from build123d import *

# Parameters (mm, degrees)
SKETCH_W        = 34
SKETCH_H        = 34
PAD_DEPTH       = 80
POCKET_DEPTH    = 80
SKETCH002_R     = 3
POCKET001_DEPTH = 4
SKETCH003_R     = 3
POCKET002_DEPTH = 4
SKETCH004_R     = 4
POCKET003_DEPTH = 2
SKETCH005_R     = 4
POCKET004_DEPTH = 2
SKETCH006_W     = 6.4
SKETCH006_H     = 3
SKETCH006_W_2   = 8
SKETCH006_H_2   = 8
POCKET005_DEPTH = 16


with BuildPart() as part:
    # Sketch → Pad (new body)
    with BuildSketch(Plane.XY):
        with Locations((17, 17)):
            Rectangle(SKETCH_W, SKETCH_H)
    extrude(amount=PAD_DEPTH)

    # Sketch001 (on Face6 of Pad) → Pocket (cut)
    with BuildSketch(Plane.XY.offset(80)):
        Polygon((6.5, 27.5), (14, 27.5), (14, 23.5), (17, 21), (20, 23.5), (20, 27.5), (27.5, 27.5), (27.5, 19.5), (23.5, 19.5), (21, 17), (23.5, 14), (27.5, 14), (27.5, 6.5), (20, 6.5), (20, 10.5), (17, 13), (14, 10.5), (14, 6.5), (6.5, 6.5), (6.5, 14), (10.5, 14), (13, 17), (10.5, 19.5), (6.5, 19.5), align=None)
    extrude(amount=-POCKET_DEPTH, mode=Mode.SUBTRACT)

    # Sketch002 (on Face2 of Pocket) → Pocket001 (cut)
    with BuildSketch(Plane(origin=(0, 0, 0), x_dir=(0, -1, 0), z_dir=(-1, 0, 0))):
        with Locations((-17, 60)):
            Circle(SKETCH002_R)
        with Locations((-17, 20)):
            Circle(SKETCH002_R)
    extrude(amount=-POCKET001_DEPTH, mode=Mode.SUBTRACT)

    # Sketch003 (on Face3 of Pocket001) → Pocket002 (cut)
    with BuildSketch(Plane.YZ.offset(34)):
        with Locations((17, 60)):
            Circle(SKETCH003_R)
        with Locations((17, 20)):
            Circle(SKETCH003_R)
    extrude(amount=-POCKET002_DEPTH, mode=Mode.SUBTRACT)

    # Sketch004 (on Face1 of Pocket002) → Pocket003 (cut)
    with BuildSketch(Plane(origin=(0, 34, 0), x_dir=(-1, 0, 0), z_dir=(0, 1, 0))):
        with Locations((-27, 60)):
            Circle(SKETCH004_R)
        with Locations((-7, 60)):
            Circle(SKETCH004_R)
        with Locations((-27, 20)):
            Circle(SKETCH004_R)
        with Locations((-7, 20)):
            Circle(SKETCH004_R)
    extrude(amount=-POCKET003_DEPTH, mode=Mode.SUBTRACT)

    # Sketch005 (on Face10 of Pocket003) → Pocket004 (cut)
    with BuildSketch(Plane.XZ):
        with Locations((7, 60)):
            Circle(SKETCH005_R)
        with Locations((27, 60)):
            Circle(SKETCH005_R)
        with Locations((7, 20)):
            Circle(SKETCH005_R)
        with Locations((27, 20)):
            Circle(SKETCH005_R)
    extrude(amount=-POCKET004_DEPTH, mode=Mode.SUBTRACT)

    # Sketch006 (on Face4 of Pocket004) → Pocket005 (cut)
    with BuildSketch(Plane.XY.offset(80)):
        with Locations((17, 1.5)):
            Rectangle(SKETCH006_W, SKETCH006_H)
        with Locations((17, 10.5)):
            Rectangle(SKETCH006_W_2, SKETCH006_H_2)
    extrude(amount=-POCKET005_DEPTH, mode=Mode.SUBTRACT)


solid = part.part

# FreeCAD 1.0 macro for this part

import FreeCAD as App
import Part
import Sketcher

V = App.Vector
Q = App.Units.Quantity

doc = App.newDocument("Part")
params = doc.addObject("Spreadsheet::Sheet", "Params")
for row, (alias, value) in enumerate([
    ("sketch1_width", "34 mm"),
    ("pad1_length", "80 mm"),
    ("sketch2_width", "4 mm"),
    ("sketch2_height", "8 mm"),
    ("sketch2_width2", "7.5 mm"),
    ("pocket1_length", "80 mm"),
    ("sketch3_diameter", "6 mm"),
    ("pocket2_length", "4 mm"),
    ("sketch4_diameter", "6 mm"),
    ("pocket3_length", "4 mm"),
    ("sketch5_diameter", "8 mm"),
    ("pocket4_length", "2 mm"),
    ("sketch6_diameter", "8 mm"),
    ("pocket5_length", "2 mm"),
    ("sketch7_width", "8 mm"),
    ("sketch7_height", "3 mm"),
    ("sketch7_width2", "6.4 mm"),
    ("pocket6_length", "16 mm"),
], start=1):
    params.set(f"A{row}", alias)
    params.set(f"B{row}", "=" + value)
    params.setAlias(f"B{row}", alias)

body = doc.addObject("PartDesign::Body", "Body")

# Sketch on XY plane
sketch1 = body.newObject("Sketcher::SketchObject", "Sketch")
sketch1.AttachmentSupport = (doc.getObject("XY_Plane"), [""])
sketch1.MapMode = "FlatFace"
sketch1.addGeometry(Part.LineSegment(V(0, 34, 0), V(0, 0, 0)), False)
sketch1.addGeometry(Part.LineSegment(V(0, 0, 0), V(34, 0, 0)), False)
sketch1.addGeometry(Part.LineSegment(V(34, 0, 0), V(34, 34, 0)), False)
sketch1.addGeometry(Part.LineSegment(V(34, 34, 0), V(0, 34, 0)), False)
sketch1.addConstraint(Sketcher.Constraint("Coincident", 0, 2, 1, 1))
sketch1.addConstraint(Sketcher.Constraint("Coincident", 1, 2, 2, 1))
sketch1.addConstraint(Sketcher.Constraint("Coincident", 2, 2, 3, 1))
sketch1.addConstraint(Sketcher.Constraint("Coincident", 3, 2, 0, 1))
sketch1.addConstraint(Sketcher.Constraint("Vertical", 0))
sketch1.addConstraint(Sketcher.Constraint("Horizontal", 1))
sketch1.addConstraint(Sketcher.Constraint("Vertical", 2))
sketch1.addConstraint(Sketcher.Constraint("Horizontal", 3))
sketch1.addConstraint(Sketcher.Constraint("Coincident", 0, 2, -1, 1))
sketch1.addConstraint(Sketcher.Constraint("Equal", 3, 0))
sketch1.addConstraint(Sketcher.Constraint("DistanceX", 1, 1, 1, 2, Q("34 mm")))
sketch1.setExpression("Constraints[10]", "Params.sketch1_width")
pad1 = body.newObject("PartDesign::Pad", "Pad")
pad1.Profile = sketch1
pad1.setExpression("Length", "Params.pad1_length")

# Sketch on XY plane
sketch2 = body.newObject("Sketcher::SketchObject", "Sketch001")
sketch2.AttachmentSupport = (doc.getObject("XY_Plane"), [""])
sketch2.MapMode = "FlatFace"
sketch2.AttachmentOffset = App.Placement(V(0, 0, 80), App.Rotation())
sketch2.addGeometry(Part.LineSegment(V(14, 27.5, 0), V(6.5, 27.5, 0)), False)
sketch2.addGeometry(Part.LineSegment(V(6.5, 27.5, 0), V(6.5, 19.5, 0)), False)
sketch2.addGeometry(Part.LineSegment(V(6.5, 19.5, 0), V(10.5, 19.5, 0)), False)
sketch2.addGeometry(Part.LineSegment(V(10.5, 19.5, 0), V(13, 17, 0)), False)
sketch2.addGeometry(Part.LineSegment(V(13, 17, 0), V(10.5, 14, 0)), False)
sketch2.addGeometry(Part.LineSegment(V(10.5, 14, 0), V(6.5, 14, 0)), False)
sketch2.addGeometry(Part.LineSegment(V(6.5, 14, 0), V(6.5, 6.5, 0)), False)
sketch2.addGeometry(Part.LineSegment(V(6.5, 6.5, 0), V(14, 6.5, 0)), False)
sketch2.addGeometry(Part.LineSegment(V(14, 6.5, 0), V(14, 10.5, 0)), False)
sketch2.addGeometry(Part.LineSegment(V(14, 10.5, 0), V(17, 13, 0)), False)
sketch2.addGeometry(Part.LineSegment(V(17, 13, 0), V(20, 10.5, 0)), False)
sketch2.addGeometry(Part.LineSegment(V(20, 10.5, 0), V(20, 6.5, 0)), False)
sketch2.addGeometry(Part.LineSegment(V(20, 6.5, 0), V(27.5, 6.5, 0)), False)
sketch2.addGeometry(Part.LineSegment(V(27.5, 6.5, 0), V(27.5, 14, 0)), False)
sketch2.addGeometry(Part.LineSegment(V(27.5, 14, 0), V(23.5, 14, 0)), False)
sketch2.addGeometry(Part.LineSegment(V(23.5, 14, 0), V(21, 17, 0)), False)
sketch2.addGeometry(Part.LineSegment(V(21, 17, 0), V(23.5, 19.5, 0)), False)
sketch2.addGeometry(Part.LineSegment(V(23.5, 19.5, 0), V(27.5, 19.5, 0)), False)
sketch2.addGeometry(Part.LineSegment(V(27.5, 19.5, 0), V(27.5, 27.5, 0)), False)
sketch2.addGeometry(Part.LineSegment(V(27.5, 27.5, 0), V(20, 27.5, 0)), False)
sketch2.addGeometry(Part.LineSegment(V(20, 27.5, 0), V(20, 23.5, 0)), False)
sketch2.addGeometry(Part.LineSegment(V(20, 23.5, 0), V(17, 21, 0)), False)
sketch2.addGeometry(Part.LineSegment(V(17, 21, 0), V(14, 23.5, 0)), False)
sketch2.addGeometry(Part.LineSegment(V(14, 23.5, 0), V(14, 27.5, 0)), False)
sketch2.addConstraint(Sketcher.Constraint("Coincident", 0, 2, 1, 1))
sketch2.addConstraint(Sketcher.Constraint("Coincident", 1, 2, 2, 1))
sketch2.addConstraint(Sketcher.Constraint("Coincident", 2, 2, 3, 1))
sketch2.addConstraint(Sketcher.Constraint("Coincident", 3, 2, 4, 1))
sketch2.addConstraint(Sketcher.Constraint("Coincident", 4, 2, 5, 1))
sketch2.addConstraint(Sketcher.Constraint("Coincident", 5, 2, 6, 1))
sketch2.addConstraint(Sketcher.Constraint("Coincident", 6, 2, 7, 1))
sketch2.addConstraint(Sketcher.Constraint("Coincident", 7, 2, 8, 1))
sketch2.addConstraint(Sketcher.Constraint("Coincident", 8, 2, 9, 1))
sketch2.addConstraint(Sketcher.Constraint("Coincident", 9, 2, 10, 1))
sketch2.addConstraint(Sketcher.Constraint("Coincident", 10, 2, 11, 1))
sketch2.addConstraint(Sketcher.Constraint("Coincident", 11, 2, 12, 1))
sketch2.addConstraint(Sketcher.Constraint("Coincident", 12, 2, 13, 1))
sketch2.addConstraint(Sketcher.Constraint("Coincident", 13, 2, 14, 1))
sketch2.addConstraint(Sketcher.Constraint("Coincident", 14, 2, 15, 1))
sketch2.addConstraint(Sketcher.Constraint("Coincident", 15, 2, 16, 1))
sketch2.addConstraint(Sketcher.Constraint("Coincident", 16, 2, 17, 1))
sketch2.addConstraint(Sketcher.Constraint("Coincident", 17, 2, 18, 1))
sketch2.addConstraint(Sketcher.Constraint("Coincident", 18, 2, 19, 1))
sketch2.addConstraint(Sketcher.Constraint("Coincident", 19, 2, 20, 1))
sketch2.addConstraint(Sketcher.Constraint("Coincident", 20, 2, 21, 1))
sketch2.addConstraint(Sketcher.Constraint("Coincident", 21, 2, 22, 1))
sketch2.addConstraint(Sketcher.Constraint("Coincident", 22, 2, 23, 1))
sketch2.addConstraint(Sketcher.Constraint("Coincident", 23, 2, 0, 1))
sketch2.addConstraint(Sketcher.Constraint("Horizontal", 0))
sketch2.addConstraint(Sketcher.Constraint("Vertical", 1))
sketch2.addConstraint(Sketcher.Constraint("Horizontal", 2))
sketch2.addConstraint(Sketcher.Constraint("Horizontal", 5))
sketch2.addConstraint(Sketcher.Constraint("Vertical", 6))
sketch2.addConstraint(Sketcher.Constraint("Horizontal", 7))
sketch2.addConstraint(Sketcher.Constraint("Vertical", 8))
sketch2.addConstraint(Sketcher.Constraint("Vertical", 11))
sketch2.addConstraint(Sketcher.Constraint("Horizontal", 12))
sketch2.addConstraint(Sketcher.Constraint("Vertical", 13))
sketch2.addConstraint(Sketcher.Constraint("Horizontal", 14))
sketch2.addConstraint(Sketcher.Constraint("Horizontal", 17))
sketch2.addConstraint(Sketcher.Constraint("Vertical", 18))
sketch2.addConstraint(Sketcher.Constraint("Horizontal", 19))
sketch2.addConstraint(Sketcher.Constraint("Vertical", 20))
sketch2.addConstraint(Sketcher.Constraint("Vertical", 23))
sketch2.addConstraint(Sketcher.Constraint("Perpendicular", 4, 10))
sketch2.addConstraint(Sketcher.Constraint("Perpendicular", 9, 15))
sketch2.addConstraint(Sketcher.Constraint("Perpendicular", 3, 16))
sketch2.addConstraint(Sketcher.Constraint("Perpendicular", 15, 21))
sketch2.addConstraint(Sketcher.Constraint("Parallel", 10, 22))
sketch2.addConstraint(Sketcher.Constraint("Horizontal", 8, 2, 10, 2))
sketch2.addConstraint(Sketcher.Constraint("Horizontal", 7, 2, 11, 2))
sketch2.addConstraint(Sketcher.Constraint("Horizontal", 5, 2, 13, 2))
sketch2.addConstraint(Sketcher.Constraint("Horizontal", 3, 2, 15, 2))
sketch2.addConstraint(Sketcher.Constraint("Horizontal", 2, 2, 16, 2))
sketch2.addConstraint(Sketcher.Constraint("Horizontal", 0, 2, 18, 2))
sketch2.addConstraint(Sketcher.Constraint("Horizontal", 20, 2, 22, 2))
sketch2.addConstraint(Sketcher.Constraint("Vertical", 2, 2, 4, 2))
sketch2.addConstraint(Sketcher.Constraint("Vertical", 1, 2, 5, 2))
sketch2.addConstraint(Sketcher.Constraint("Vertical", 14, 2, 16, 2))
sketch2.addConstraint(Sketcher.Constraint("Vertical", 13, 2, 17, 2))
sketch2.addConstraint(Sketcher.Constraint("Vertical", 11, 2, 19, 2))
sketch2.addConstraint(Sketcher.Constraint("Vertical", 9, 2, 21, 2))
sketch2.addConstraint(Sketcher.Constraint("Vertical", 8, 2, 22, 2))
sketch2.addConstraint(Sketcher.Constraint("Equal", 7, 12))
sketch2.addConstraint(Sketcher.Constraint("Equal", 5, 14))
sketch2.addConstraint(Sketcher.Constraint("Equal", 19, 6))
sketch2.addConstraint(Sketcher.Constraint("Equal", 17, 8))
sketch2.addConstraint(Sketcher.Constraint("Equal", 11, 20))
sketch2.addConstraint(Sketcher.Constraint("Equal", 4, 9))
sketch2.addConstraint(Sketcher.Constraint("DistanceX", 2, 1, 2, 2, Q("4 mm")))
sketch2.addConstraint(Sketcher.Constraint("DistanceY", 1, 2, 1, 1, Q("8 mm")))
sketch2.addConstraint(Sketcher.Constraint("DistanceX", 0, 2, 0, 1, Q("7.5 mm")))
sketch2.addConstraint(Sketcher.Constraint("DistanceX", -1, 1, 3, 2, Q("13 mm")))
sketch2.addConstraint(Sketcher.Constraint("DistanceY", -1, 1, 3, 2, Q("17 mm")))
sketch2.addConstraint(Sketcher.Constraint("DistanceY", -1, 1, 4, 2, Q("14 mm")))
sketch2.addConstraint(Sketcher.Constraint("DistanceX", -1, 1, 7, 2, Q("14 mm")))
sketch2.setExpression("Constraints[65]", "Params.sketch2_width")
sketch2.setExpression("Constraints[66]", "Params.sketch2_height")
sketch2.setExpression("Constraints[67]", "Params.sketch2_width2")
pocket1 = body.newObject("PartDesign::Pocket", "Pocket")
pocket1.Profile = sketch2
pocket1.setExpression("Length", "Params.pocket1_length")

# Sketch on YZ plane
sketch3 = body.newObject("Sketcher::SketchObject", "Sketch002")
sketch3.AttachmentSupport = (doc.getObject("YZ_Plane"), [""])
sketch3.MapMode = "FlatFace"
sketch3.addGeometry(Part.Circle(V(17, 60, 0), V(0, 0, 1), 3), False)
sketch3.addGeometry(Part.Circle(V(17, 20, 0), V(0, 0, 1), 3), False)
sketch3.addConstraint(Sketcher.Constraint("Equal", 0, 1))
sketch3.addConstraint(Sketcher.Constraint("Vertical", 0, 3, 1, 3))
sketch3.addConstraint(Sketcher.Constraint("Diameter", 0, Q("6 mm")))
sketch3.addConstraint(Sketcher.Constraint("DistanceX", -1, 1, 0, 3, Q("17 mm")))
sketch3.addConstraint(Sketcher.Constraint("DistanceY", -1, 1, 0, 3, Q("60 mm")))
sketch3.addConstraint(Sketcher.Constraint("DistanceY", -1, 1, 1, 3, Q("20 mm")))
sketch3.setExpression("Constraints[2]", "Params.sketch3_diameter")
pocket2 = body.newObject("PartDesign::Pocket", "Pocket001")
pocket2.Profile = sketch3
pocket2.setExpression("Length", "Params.pocket2_length")
pocket2.Reversed = True

# Sketch on YZ plane
sketch4 = body.newObject("Sketcher::SketchObject", "Sketch003")
sketch4.AttachmentSupport = (doc.getObject("YZ_Plane"), [""])
sketch4.MapMode = "FlatFace"
sketch4.AttachmentOffset = App.Placement(V(0, 0, 34), App.Rotation())
sketch4.addGeometry(Part.Circle(V(17, 60, 0), V(0, 0, 1), 3), False)
sketch4.addGeometry(Part.Circle(V(17, 20, 0), V(0, 0, 1), 3), False)
sketch4.addConstraint(Sketcher.Constraint("Equal", 0, 1))
sketch4.addConstraint(Sketcher.Constraint("Vertical", 0, 3, 1, 3))
sketch4.addConstraint(Sketcher.Constraint("Diameter", 0, Q("6 mm")))
sketch4.addConstraint(Sketcher.Constraint("DistanceX", -1, 1, 0, 3, Q("17 mm")))
sketch4.addConstraint(Sketcher.Constraint("DistanceY", -1, 1, 0, 3, Q("60 mm")))
sketch4.addConstraint(Sketcher.Constraint("DistanceY", -1, 1, 1, 3, Q("20 mm")))
sketch4.setExpression("Constraints[2]", "Params.sketch4_diameter")
pocket3 = body.newObject("PartDesign::Pocket", "Pocket002")
pocket3.Profile = sketch4
pocket3.setExpression("Length", "Params.pocket3_length")

# Sketch on XZ plane
sketch5 = body.newObject("Sketcher::SketchObject", "Sketch004")
sketch5.AttachmentSupport = (doc.getObject("XZ_Plane"), [""])
sketch5.MapMode = "FlatFace"
sketch5.AttachmentOffset = App.Placement(V(0, 0, -34), App.Rotation())
sketch5.addGeometry(Part.Circle(V(27, 60, 0), V(0, 0, 1), 4), False)
sketch5.addGeometry(Part.Circle(V(7, 60, 0), V(0, 0, 1), 4), False)
sketch5.addGeometry(Part.Circle(V(27, 20, 0), V(0, 0, 1), 4), False)
sketch5.addGeometry(Part.Circle(V(7, 20, 0), V(0, 0, 1), 4), False)
sketch5.addConstraint(Sketcher.Constraint("Equal", 0, 1))
sketch5.addConstraint(Sketcher.Constraint("Equal", 1, 2))
sketch5.addConstraint(Sketcher.Constraint("Equal", 2, 3))
sketch5.addConstraint(Sketcher.Constraint("Horizontal", 0, 3, 1, 3))
sketch5.addConstraint(Sketcher.Constraint("Horizontal", 2, 3, 3, 3))
sketch5.addConstraint(Sketcher.Constraint("Vertical", 0, 3, 2, 3))
sketch5.addConstraint(Sketcher.Constraint("Vertical", 1, 3, 3, 3))
sketch5.addConstraint(Sketcher.Constraint("Diameter", 0, Q("8 mm")))
sketch5.addConstraint(Sketcher.Constraint("DistanceX", -1, 1, 0, 3, Q("27 mm")))
sketch5.addConstraint(Sketcher.Constraint("DistanceY", -1, 1, 0, 3, Q("60 mm")))
sketch5.addConstraint(Sketcher.Constraint("DistanceX", -1, 1, 1, 3, Q("7 mm")))
sketch5.addConstraint(Sketcher.Constraint("DistanceY", -1, 1, 2, 3, Q("20 mm")))
sketch5.setExpression("Constraints[7]", "Params.sketch5_diameter")
pocket4 = body.newObject("PartDesign::Pocket", "Pocket003")
pocket4.Profile = sketch5
pocket4.setExpression("Length", "Params.pocket4_length")
pocket4.Reversed = True

# Sketch on XZ plane
sketch6 = body.newObject("Sketcher::SketchObject", "Sketch005")
sketch6.AttachmentSupport = (doc.getObject("XZ_Plane"), [""])
sketch6.MapMode = "FlatFace"
sketch6.addGeometry(Part.Circle(V(7, 60, 0), V(0, 0, 1), 4), False)
sketch6.addGeometry(Part.Circle(V(27, 60, 0), V(0, 0, 1), 4), False)
sketch6.addGeometry(Part.Circle(V(7, 20, 0), V(0, 0, 1), 4), False)
sketch6.addGeometry(Part.Circle(V(27, 20, 0), V(0, 0, 1), 4), False)
sketch6.addConstraint(Sketcher.Constraint("Equal", 0, 1))
sketch6.addConstraint(Sketcher.Constraint("Equal", 1, 2))
sketch6.addConstraint(Sketcher.Constraint("Equal", 2, 3))
sketch6.addConstraint(Sketcher.Constraint("Horizontal", 0, 3, 1, 3))
sketch6.addConstraint(Sketcher.Constraint("Horizontal", 2, 3, 3, 3))
sketch6.addConstraint(Sketcher.Constraint("Vertical", 0, 3, 2, 3))
sketch6.addConstraint(Sketcher.Constraint("Vertical", 1, 3, 3, 3))
sketch6.addConstraint(Sketcher.Constraint("Diameter", 0, Q("8 mm")))
sketch6.addConstraint(Sketcher.Constraint("DistanceX", -1, 1, 0, 3, Q("7 mm")))
sketch6.addConstraint(Sketcher.Constraint("DistanceY", -1, 1, 0, 3, Q("60 mm")))
sketch6.addConstraint(Sketcher.Constraint("DistanceX", -1, 1, 1, 3, Q("27 mm")))
sketch6.addConstraint(Sketcher.Constraint("DistanceY", -1, 1, 2, 3, Q("20 mm")))
sketch6.setExpression("Constraints[7]", "Params.sketch6_diameter")
pocket5 = body.newObject("PartDesign::Pocket", "Pocket004")
pocket5.Profile = sketch6
pocket5.setExpression("Length", "Params.pocket5_length")

# Sketch on XY plane
sketch7 = body.newObject("Sketcher::SketchObject", "Sketch006")
sketch7.AttachmentSupport = (doc.getObject("XY_Plane"), [""])
sketch7.MapMode = "FlatFace"
sketch7.AttachmentOffset = App.Placement(V(0, 0, 80), App.Rotation())
sketch7.addGeometry(Part.LineSegment(V(13.8, 3, 0), V(13.8, 0, 0)), False)
sketch7.addGeometry(Part.LineSegment(V(13.8, 0, 0), V(20.2, 0, 0)), False)
sketch7.addGeometry(Part.LineSegment(V(20.2, 0, 0), V(20.2, 3, 0)), False)
sketch7.addGeometry(Part.LineSegment(V(20.2, 3, 0), V(13.8, 3, 0)), False)
sketch7.addGeometry(Part.LineSegment(V(13, 14.5, 0), V(13, 6.5, 0)), False)
sketch7.addGeometry(Part.LineSegment(V(13, 6.5, 0), V(21, 6.5, 0)), False)
sketch7.addGeometry(Part.LineSegment(V(21, 6.5, 0), V(21, 14.5, 0)), False)
sketch7.addGeometry(Part.LineSegment(V(21, 14.5, 0), V(13, 14.5, 0)), False)
sketch7.addConstraint(Sketcher.Constraint("Coincident", 0, 2, 1, 1))
sketch7.addConstraint(Sketcher.Constraint("Coincident", 1, 2, 2, 1))
sketch7.addConstraint(Sketcher.Constraint("Coincident", 2, 2, 3, 1))
sketch7.addConstraint(Sketcher.Constraint("Coincident", 3, 2, 0, 1))
sketch7.addConstraint(Sketcher.Constraint("Coincident", 4, 2, 5, 1))
sketch7.addConstraint(Sketcher.Constraint("Coincident", 5, 2, 6, 1))
sketch7.addConstraint(Sketcher.Constraint("Coincident", 6, 2, 7, 1))
sketch7.addConstraint(Sketcher.Constraint("Coincident", 7, 2, 4, 1))
sketch7.addConstraint(Sketcher.Constraint("Vertical", 0))
sketch7.addConstraint(Sketcher.Constraint("Horizontal", 1))
sketch7.addConstraint(Sketcher.Constraint("Vertical", 2))
sketch7.addConstraint(Sketcher.Constraint("Horizontal", 3))
sketch7.addConstraint(Sketcher.Constraint("Vertical", 4))
sketch7.addConstraint(Sketcher.Constraint("Horizontal", 5))
sketch7.addConstraint(Sketcher.Constraint("Vertical", 6))
sketch7.addConstraint(Sketcher.Constraint("Horizontal", 7))
sketch7.addConstraint(Sketcher.Constraint("PointOnObject", 0, 2, -1))
sketch7.addConstraint(Sketcher.Constraint("Equal", 7, 4))
sketch7.addConstraint(Sketcher.Constraint("DistanceX", 5, 1, 5, 2, Q("8 mm")))
sketch7.addConstraint(Sketcher.Constraint("DistanceY", 0, 2, 0, 1, Q("3 mm")))
sketch7.addConstraint(Sketcher.Constraint("DistanceX", 1, 1, 1, 2, Q("6.4 mm")))
sketch7.addConstraint(Sketcher.Constraint("DistanceX", -1, 1, 4, 2, Q("13 mm")))
sketch7.addConstraint(Sketcher.Constraint("DistanceX", -1, 1, 0, 2, Q("13.8 mm")))
sketch7.addConstraint(Sketcher.Constraint("DistanceY", -1, 1, 4, 2, Q("6.5 mm")))
sketch7.setExpression("Constraints[18]", "Params.sketch7_width")
sketch7.setExpression("Constraints[19]", "Params.sketch7_height")
sketch7.setExpression("Constraints[20]", "Params.sketch7_width2")
pocket6 = body.newObject("PartDesign::Pocket", "Pocket005")
pocket6.Profile = sketch7
pocket6.setExpression("Length", "Params.pocket6_length")

doc.recompute()
